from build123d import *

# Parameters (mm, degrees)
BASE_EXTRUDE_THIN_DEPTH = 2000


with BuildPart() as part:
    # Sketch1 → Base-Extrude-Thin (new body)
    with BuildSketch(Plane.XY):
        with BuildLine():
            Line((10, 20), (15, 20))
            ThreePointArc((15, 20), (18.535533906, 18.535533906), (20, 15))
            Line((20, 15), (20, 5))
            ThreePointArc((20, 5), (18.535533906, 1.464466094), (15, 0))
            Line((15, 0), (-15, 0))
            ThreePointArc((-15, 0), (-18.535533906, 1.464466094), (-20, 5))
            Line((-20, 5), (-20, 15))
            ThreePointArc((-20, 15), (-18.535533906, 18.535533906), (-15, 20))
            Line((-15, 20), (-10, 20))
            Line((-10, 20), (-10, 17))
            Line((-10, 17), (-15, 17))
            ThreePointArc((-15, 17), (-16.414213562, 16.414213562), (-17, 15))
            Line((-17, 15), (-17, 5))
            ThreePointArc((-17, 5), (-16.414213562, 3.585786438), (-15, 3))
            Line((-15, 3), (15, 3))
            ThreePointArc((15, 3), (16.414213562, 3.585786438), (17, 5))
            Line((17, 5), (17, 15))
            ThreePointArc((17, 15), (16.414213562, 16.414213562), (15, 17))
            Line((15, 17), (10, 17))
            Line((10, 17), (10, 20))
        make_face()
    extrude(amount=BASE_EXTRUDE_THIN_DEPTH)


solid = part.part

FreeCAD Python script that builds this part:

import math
import FreeCAD as App
import Part
import Sketcher

V = App.Vector
Q = App.Units.Quantity

doc = App.newDocument("Part")
params = doc.addObject("Spreadsheet::Sheet", "Params")
for row, (alias, value) in enumerate([
    ("sketch1_radius", "2 mm"),
    ("sketch1_radius2", "5 mm"),
    ("sketch1_width", "5 mm"),
    ("sketch1_width2", "30 mm"),
    ("sketch1_height", "10 mm"),
    ("pad1_length", "2000 mm"),
], start=1):
    params.set(f"A{row}", alias)
    params.set(f"B{row}", "=" + value)
    params.setAlias(f"B{row}", alias)

body = doc.addObject("PartDesign::Body", "Body")

sketch1 = doc.addObject("Sketcher::SketchObject", "Sketch")
body.addObject(sketch1)
sketch1.AttachmentSupport = (doc.XY_Plane, [""])
sketch1.MapMode = "FlatFace"
sketch1.addGeometry([
    Part.LineSegment(V(15, 20, 0), V(10, 20, 0)),
    Part.LineSegment(V(10, 20, 0), V(10, 17, 0)),
    Part.LineSegment(V(10, 17, 0), V(15, 17, 0)),
    Part.ArcOfCircle(Part.Circle(V(15, 15, 0), V(0, 0, 1), 2), math.radians(0), math.radians(90)),
    Part.LineSegment(V(17, 15, 0), V(17, 5, 0)),
    Part.ArcOfCircle(Part.Circle(V(15, 5, 0), V(0, 0, 1), 2), math.radians(-90), math.radians(0)),
    Part.LineSegment(V(15, 3, 0), V(-15, 3, 0)),
    Part.ArcOfCircle(Part.Circle(V(-15, 5, 0), V(0, 0, 1), 2), math.radians(-180), math.radians(-90)),
    Part.LineSegment(V(-17, 5, 0), V(-17, 15, 0)),
    Part.ArcOfCircle(Part.Circle(V(-15, 15, 0), V(0, 0, 1), 2), math.radians(90), math.radians(180)),
    Part.LineSegment(V(-15, 17, 0), V(-10, 17, 0)),
    Part.LineSegment(V(-10, 17, 0), V(-10, 20, 0)),
    Part.LineSegment(V(-10, 20, 0), V(-15, 20, 0)),
    Part.ArcOfCircle(Part.Circle(V(-15, 15, 0), V(0, 0, 1), 5), math.radians(90), math.radians(180)),
    Part.LineSegment(V(-20, 15, 0), V(-20, 5, 0)),
    Part.ArcOfCircle(Part.Circle(V(-15, 5, 0), V(0, 0, 1), 5), math.radians(180), math.radians(270)),
    Part.LineSegment(V(-15, 0, 0), V(15, 0, 0)),
    Part.ArcOfCircle(Part.Circle(V(15, 5, 0), V(0, 0, 1), 5), math.radians(-90), math.radians(0)),
    Part.LineSegment(V(20, 5, 0), V(20, 15, 0)),
    Part.ArcOfCircle(Part.Circle(V(15, 15, 0), V(0, 0, 1), 5), math.radians(0), math.radians(90)),
], False)
sketch1.addConstraint([
    Sketcher.Constraint("Coincident", 0, 2, 1, 1),
    Sketcher.Constraint("Coincident", 1, 2, 2, 1),
    Sketcher.Constraint("Tangent", 2, 2, 3, 2),
    Sketcher.Constraint("Tangent", 3, 1, 4, 1),
    Sketcher.Constraint("Tangent", 4, 2, 5, 2),
    Sketcher.Constraint("Tangent", 5, 1, 6, 1),
    Sketcher.Constraint("Tangent", 6, 2, 7, 2),
    Sketcher.Constraint("Tangent", 7, 1, 8, 1),
    Sketcher.Constraint("Tangent", 8, 2, 9, 2),
    Sketcher.Constraint("Tangent", 9, 1, 10, 1),
    Sketcher.Constraint("Coincident", 10, 2, 11, 1),
    Sketcher.Constraint("Coincident", 11, 2, 12, 1),
    Sketcher.Constraint("Tangent", 12, 2, 13, 1),
    Sketcher.Constraint("Tangent", 13, 2, 14, 1),
    Sketcher.Constraint("Tangent", 14, 2, 15, 1),
    Sketcher.Constraint("Tangent", 15, 2, 16, 1),
    Sketcher.Constraint("Tangent", 16, 2, 17, 1),
    Sketcher.Constraint("Tangent", 17, 2, 18, 1),
    Sketcher.Constraint("Tangent", 18, 2, 19, 1),
    Sketcher.Constraint("Tangent", 19, 2, 0, 1),
    Sketcher.Constraint("Horizontal", 0),
    Sketcher.Constraint("Vertical", 1),
    Sketcher.Constraint("Horizontal", 2),
    Sketcher.Constraint("Vertical", 4),
    Sketcher.Constraint("Horizontal", 6),
    Sketcher.Constraint("Vertical", 8),
    Sketcher.Constraint("Horizontal", 10),
    Sketcher.Constraint("Vertical", 11),
    Sketcher.Constraint("Horizontal", 12),
    Sketcher.Constraint("Vertical", 14),
    Sketcher.Constraint("Horizontal", 16),
    Sketcher.Constraint("Vertical", 18),
    Sketcher.Constraint("Coincident", 13, 3, 9, 3),
    Sketcher.Constraint("Coincident", 15, 3, 7, 3),
    Sketcher.Constraint("Coincident", 17, 3, 5, 3),
    Sketcher.Constraint("Coincident", 19, 3, 3, 3),
    Sketcher.Constraint("Equal", 3, 5),
    Sketcher.Constraint("Equal", 5, 7),
    Sketcher.Constraint("Equal", 7, 9),
    Sketcher.Constraint("Symmetric", 15, 2, 16, 2, -1, 1),
    Sketcher.Constraint("Symmetric", 1, 2, 10, 2, -2),
    Sketcher.Constraint("Radius", 3, Q("2 mm")),
    Sketcher.Constraint("Radius", 13, Q("5 mm")),
    Sketcher.Constraint("DistanceX", 0, 2, 0, 1, Q("5 mm")),
    Sketcher.Constraint("DistanceX", 6, 2, 6, 1, Q("30 mm")),
    Sketcher.Constraint("DistanceY", 4, 2, 4, 1, Q("10 mm")),
])
sketch1.setExpression("Constraints[41]", "Params.sketch1_radius")
sketch1.setExpression("Constraints[42]", "Params.sketch1_radius2")
sketch1.setExpression("Constraints[43]", "Params.sketch1_width")
sketch1.setExpression("Constraints[44]", "Params.sketch1_width2")
sketch1.setExpression("Constraints[45]", "Params.sketch1_height")
pad1 = doc.addObject("PartDesign::Pad", "Pad")
body.addObject(pad1)
pad1.Profile = sketch1
pad1.setExpression("Length", "Params.pad1_length")

doc.recompute()
